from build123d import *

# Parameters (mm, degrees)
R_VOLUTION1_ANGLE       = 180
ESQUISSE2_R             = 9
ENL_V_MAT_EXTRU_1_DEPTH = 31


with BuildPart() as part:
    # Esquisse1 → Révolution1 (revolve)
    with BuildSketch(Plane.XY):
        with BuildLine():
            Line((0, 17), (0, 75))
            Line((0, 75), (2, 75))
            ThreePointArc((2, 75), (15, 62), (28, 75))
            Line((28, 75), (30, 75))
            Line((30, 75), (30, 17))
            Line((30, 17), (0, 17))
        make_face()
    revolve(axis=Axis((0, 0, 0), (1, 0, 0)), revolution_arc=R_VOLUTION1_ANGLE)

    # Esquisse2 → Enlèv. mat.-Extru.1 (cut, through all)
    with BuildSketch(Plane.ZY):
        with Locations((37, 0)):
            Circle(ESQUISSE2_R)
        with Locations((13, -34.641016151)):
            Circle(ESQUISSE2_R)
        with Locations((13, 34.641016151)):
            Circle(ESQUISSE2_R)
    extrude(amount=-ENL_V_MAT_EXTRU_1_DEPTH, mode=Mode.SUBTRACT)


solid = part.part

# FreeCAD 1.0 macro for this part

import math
import FreeCAD as App
import Part
import Sketcher
from FreeCAD import Vector
Q = App.Units.Quantity

doc = App.newDocument("Part")
body = doc.addObject("PartDesign::Body", "Body")

sketch1 = doc.addObject("Sketcher::SketchObject", "Sketch")
body.addObject(sketch1)
sketch1.AttachmentSupport = (doc.XY_Plane, [""])
sketch1.MapMode = "FlatFace"
sketch1.addGeometry([
    Part.LineSegment(Vector(0, 75, 0), Vector(0, 17, 0)),
    Part.LineSegment(Vector(0, 17, 0), Vector(30, 17, 0)),
    Part.LineSegment(Vector(30, 17, 0), Vector(30, 75, 0)),
    Part.LineSegment(Vector(30, 75, 0), Vector(28, 75, 0)),
    Part.ArcOfCircle(Part.Circle(Vector(15, 75, 0), Vector(0, 0, 1), 13), math.radians(180), math.radians(360)),
    Part.LineSegment(Vector(2, 75, 0), Vector(0, 75, 0)),
], False)
sketch1.addConstraint([
    Sketcher.Constraint("Coincident", 0, 2, 1, 1),
    Sketcher.Constraint("Coincident", 1, 2, 2, 1),
    Sketcher.Constraint("Coincident", 2, 2, 3, 1),
    Sketcher.Constraint("Coincident", 3, 2, 4, 2),
    Sketcher.Constraint("Coincident", 4, 1, 5, 1),
    Sketcher.Constraint("Coincident", 5, 2, 0, 1),
    Sketcher.Constraint("Vertical", 0),
    Sketcher.Constraint("Horizontal", 1),
    Sketcher.Constraint("Vertical", 2),
    Sketcher.Constraint("Horizontal", 3),
    Sketcher.Constraint("Horizontal", 5),
    Sketcher.Constraint("PointOnObject", 0, 2, -2),
    Sketcher.Constraint("Horizontal", 4, 3, 2, 2),
    Sketcher.Constraint("Horizontal", 3, 2, 4, 1),
    Sketcher.Constraint("Equal", 3, 5),
    Sketcher.Constraint("Radius", 4, Q("13 mm")),
    Sketcher.Constraint("DistanceX", 1, 1, 1, 2, Q("30 mm")),
    Sketcher.Constraint("DistanceY", 0, 2, 0, 1, Q("58 mm")),
    Sketcher.Constraint("DistanceY", -1, 1, 4, 3, Q("75 mm")),
])
revolution = doc.addObject("PartDesign::Revolution", "Revolution")
body.addObject(revolution)
revolution.Profile = sketch1
revolution.ReferenceAxis = (sketch1, ["H_Axis"])
revolution.Angle = 180

sketch2 = doc.addObject("Sketcher::SketchObject", "Sketch001")
body.addObject(sketch2)
sketch2.AttachmentSupport = (doc.YZ_Plane, [""])
sketch2.MapMode = "FlatFace"
sketch2.addGeometry([
    Part.Circle(Vector(0, 37, 0), Vector(0, 0, 1), 9),
    Part.Circle(Vector(-35, 13, 0), Vector(0, 0, 1), 9),
    Part.Circle(Vector(35, 13, 0), Vector(0, 0, 1), 9),
], False)
sketch2.addConstraint([
    Sketcher.Constraint("Equal", 0, 1),
    Sketcher.Constraint("Equal", 1, 2),
    Sketcher.Constraint("Symmetric", 1, 3, 2, 3, -2),
    Sketcher.Constraint("PointOnObject", 0, 3, -2),
    Sketcher.Constraint("Diameter", 0, Q("18 mm")),
    Sketcher.Constraint("DistanceY", -1, 1, 0, 3, Q("37 mm")),
    Sketcher.Constraint("DistanceY", -1, 1, 1, 3, Q("13 mm")),
    Sketcher.Constraint("DistanceX", 1, 3, -1, 1, Q("34.641016 mm")),
])
pocket1 = doc.addObject("PartDesign::Pocket", "Pocket")
body.addObject(pocket1)
pocket1.Profile = sketch2
pocket1.Type = "ThroughAll"
pocket1.Reversed = True

doc.recompute()
